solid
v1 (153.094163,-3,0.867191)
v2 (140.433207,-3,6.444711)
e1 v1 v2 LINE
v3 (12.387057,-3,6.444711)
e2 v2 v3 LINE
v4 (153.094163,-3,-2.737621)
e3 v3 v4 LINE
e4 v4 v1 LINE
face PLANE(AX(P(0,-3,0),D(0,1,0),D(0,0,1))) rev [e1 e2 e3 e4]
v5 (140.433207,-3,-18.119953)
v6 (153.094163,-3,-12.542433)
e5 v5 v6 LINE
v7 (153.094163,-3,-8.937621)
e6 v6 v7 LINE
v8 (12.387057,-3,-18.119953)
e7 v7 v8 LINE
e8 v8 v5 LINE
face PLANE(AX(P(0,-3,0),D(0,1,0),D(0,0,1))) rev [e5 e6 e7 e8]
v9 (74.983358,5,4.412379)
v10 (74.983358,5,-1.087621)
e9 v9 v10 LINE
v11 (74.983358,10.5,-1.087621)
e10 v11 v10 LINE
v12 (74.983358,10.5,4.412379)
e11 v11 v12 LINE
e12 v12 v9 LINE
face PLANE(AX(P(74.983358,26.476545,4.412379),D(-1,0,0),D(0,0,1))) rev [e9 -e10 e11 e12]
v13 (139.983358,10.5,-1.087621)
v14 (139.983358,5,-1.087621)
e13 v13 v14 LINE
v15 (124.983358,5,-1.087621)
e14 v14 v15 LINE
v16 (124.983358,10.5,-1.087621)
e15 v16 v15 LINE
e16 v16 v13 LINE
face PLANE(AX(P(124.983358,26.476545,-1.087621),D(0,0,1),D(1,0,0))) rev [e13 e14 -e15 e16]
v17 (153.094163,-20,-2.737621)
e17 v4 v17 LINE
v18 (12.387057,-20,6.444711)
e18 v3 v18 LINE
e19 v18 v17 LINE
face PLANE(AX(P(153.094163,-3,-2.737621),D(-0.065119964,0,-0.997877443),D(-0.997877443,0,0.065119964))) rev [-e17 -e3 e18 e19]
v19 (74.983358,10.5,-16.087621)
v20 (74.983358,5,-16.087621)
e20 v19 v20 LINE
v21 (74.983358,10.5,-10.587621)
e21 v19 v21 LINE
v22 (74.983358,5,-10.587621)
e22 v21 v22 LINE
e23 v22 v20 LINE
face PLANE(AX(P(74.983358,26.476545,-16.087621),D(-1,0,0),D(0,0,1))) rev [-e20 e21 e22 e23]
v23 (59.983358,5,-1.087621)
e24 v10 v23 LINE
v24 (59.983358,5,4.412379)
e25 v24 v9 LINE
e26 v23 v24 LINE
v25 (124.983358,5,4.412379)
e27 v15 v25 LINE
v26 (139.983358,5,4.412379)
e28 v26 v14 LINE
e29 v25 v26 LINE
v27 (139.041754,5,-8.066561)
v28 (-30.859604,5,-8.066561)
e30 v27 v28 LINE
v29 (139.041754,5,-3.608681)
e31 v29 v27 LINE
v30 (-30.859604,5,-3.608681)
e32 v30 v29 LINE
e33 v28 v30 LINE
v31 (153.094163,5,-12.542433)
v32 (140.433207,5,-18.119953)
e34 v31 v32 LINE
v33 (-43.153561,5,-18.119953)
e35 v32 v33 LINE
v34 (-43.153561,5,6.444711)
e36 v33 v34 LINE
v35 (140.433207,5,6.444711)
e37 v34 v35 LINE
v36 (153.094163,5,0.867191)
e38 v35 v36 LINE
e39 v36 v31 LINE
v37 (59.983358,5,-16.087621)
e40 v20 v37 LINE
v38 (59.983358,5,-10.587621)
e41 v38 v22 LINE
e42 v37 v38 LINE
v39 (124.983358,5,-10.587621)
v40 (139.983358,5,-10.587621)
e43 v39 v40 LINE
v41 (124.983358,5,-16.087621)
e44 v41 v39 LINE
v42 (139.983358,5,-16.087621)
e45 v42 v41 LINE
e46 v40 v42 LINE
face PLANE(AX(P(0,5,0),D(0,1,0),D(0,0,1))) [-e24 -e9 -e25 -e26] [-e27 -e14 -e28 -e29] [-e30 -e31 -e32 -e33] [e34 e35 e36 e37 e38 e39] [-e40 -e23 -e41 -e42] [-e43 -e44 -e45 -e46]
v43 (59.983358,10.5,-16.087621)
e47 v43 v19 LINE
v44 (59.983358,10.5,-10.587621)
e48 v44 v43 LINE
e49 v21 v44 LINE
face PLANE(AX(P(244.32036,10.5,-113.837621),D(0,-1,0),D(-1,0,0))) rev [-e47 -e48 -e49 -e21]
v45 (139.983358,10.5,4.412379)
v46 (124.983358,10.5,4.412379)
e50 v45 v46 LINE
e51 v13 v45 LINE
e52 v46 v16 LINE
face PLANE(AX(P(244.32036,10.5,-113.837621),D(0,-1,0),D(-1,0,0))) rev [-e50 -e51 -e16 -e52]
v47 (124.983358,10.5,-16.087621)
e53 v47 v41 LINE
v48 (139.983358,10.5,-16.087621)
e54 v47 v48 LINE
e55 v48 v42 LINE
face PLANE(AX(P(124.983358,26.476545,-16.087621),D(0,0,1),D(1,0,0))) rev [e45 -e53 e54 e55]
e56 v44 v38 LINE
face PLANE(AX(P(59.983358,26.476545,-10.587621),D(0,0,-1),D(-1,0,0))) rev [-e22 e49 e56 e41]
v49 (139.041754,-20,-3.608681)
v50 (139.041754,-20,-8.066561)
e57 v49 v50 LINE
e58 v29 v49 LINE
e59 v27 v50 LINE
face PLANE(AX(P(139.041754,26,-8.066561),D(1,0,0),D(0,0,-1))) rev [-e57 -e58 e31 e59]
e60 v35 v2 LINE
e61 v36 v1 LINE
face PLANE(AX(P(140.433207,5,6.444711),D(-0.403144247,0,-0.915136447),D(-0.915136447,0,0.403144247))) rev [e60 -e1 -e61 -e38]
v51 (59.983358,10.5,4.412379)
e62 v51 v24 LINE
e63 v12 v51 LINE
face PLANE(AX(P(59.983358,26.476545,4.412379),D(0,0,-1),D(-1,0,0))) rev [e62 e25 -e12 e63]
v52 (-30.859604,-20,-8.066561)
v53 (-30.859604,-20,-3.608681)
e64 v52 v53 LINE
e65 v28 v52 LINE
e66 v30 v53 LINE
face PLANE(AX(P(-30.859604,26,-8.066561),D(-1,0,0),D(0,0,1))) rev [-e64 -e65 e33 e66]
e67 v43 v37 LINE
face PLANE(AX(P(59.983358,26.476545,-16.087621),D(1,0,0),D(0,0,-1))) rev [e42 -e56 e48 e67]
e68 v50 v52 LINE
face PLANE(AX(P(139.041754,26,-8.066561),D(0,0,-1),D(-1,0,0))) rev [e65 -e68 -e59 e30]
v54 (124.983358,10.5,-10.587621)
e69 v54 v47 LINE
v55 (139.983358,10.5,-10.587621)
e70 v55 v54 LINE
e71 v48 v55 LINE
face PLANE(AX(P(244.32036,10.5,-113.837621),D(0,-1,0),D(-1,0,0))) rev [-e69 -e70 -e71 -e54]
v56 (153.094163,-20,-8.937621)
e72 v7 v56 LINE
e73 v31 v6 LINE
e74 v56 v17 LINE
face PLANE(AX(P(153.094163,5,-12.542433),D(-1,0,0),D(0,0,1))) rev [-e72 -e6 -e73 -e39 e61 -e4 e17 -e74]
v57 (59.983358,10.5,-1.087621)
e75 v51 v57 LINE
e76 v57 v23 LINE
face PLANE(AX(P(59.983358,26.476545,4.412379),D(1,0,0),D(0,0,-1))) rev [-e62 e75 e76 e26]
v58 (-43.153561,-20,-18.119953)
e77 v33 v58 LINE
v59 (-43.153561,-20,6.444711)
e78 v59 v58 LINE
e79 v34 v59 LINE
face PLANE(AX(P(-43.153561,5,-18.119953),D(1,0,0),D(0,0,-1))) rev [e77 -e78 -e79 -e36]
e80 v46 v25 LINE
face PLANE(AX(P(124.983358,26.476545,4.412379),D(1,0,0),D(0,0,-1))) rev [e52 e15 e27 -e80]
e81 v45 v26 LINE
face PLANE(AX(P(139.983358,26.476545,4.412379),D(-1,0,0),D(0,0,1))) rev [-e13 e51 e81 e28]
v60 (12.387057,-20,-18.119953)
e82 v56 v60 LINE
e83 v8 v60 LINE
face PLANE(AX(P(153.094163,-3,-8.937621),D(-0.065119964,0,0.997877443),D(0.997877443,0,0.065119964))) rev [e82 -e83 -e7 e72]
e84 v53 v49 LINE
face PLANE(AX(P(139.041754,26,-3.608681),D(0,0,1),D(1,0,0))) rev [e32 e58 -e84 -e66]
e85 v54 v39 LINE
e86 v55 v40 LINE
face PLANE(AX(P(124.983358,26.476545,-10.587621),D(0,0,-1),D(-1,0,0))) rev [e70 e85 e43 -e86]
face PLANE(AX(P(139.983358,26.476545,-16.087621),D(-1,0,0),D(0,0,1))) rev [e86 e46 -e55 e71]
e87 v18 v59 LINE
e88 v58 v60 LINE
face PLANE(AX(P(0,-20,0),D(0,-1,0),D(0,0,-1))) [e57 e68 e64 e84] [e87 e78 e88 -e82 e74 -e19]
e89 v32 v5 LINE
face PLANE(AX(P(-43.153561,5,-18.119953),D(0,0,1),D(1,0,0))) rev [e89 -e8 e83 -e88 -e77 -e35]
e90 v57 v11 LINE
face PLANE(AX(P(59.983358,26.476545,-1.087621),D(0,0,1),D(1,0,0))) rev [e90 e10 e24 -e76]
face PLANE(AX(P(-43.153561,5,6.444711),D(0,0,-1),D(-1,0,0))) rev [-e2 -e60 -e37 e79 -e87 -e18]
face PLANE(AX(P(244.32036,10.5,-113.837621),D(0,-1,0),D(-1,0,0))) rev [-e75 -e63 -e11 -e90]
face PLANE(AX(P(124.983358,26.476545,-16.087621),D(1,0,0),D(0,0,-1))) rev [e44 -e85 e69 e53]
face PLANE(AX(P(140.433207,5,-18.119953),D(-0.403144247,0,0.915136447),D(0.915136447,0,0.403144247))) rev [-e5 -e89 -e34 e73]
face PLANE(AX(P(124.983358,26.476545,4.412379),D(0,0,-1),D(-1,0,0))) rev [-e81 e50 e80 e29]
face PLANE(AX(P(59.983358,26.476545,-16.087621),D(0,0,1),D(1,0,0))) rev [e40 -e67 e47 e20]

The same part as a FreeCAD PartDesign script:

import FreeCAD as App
import Part
import Sketcher


def add_polygon(sketch, points):
    """Adds a closed chain of lines whose ends are joined by coincident constraints."""
    first, n = sketch.GeometryCount, len(points)
    for a, b in zip(points, points[1:] + points[:1]):
        sketch.addGeometry(Part.LineSegment(App.Vector(*a, 0), App.Vector(*b, 0)), False)
    for i in range(n):
        sketch.addConstraint(Sketcher.Constraint("Coincident", first + i, 2, first + (i + 1) % n, 1))

doc = App.newDocument("Part")
body = doc.addObject("PartDesign::Body", "Body")

# Sketch on XZ plane
sketch1 = body.newObject("Sketcher::SketchObject", "Sketch")
sketch1.AttachmentSupport = (doc.getObject("XZ_Plane"), [""])
sketch1.MapMode = "FlatFace"
add_polygon(sketch1, [(140, -18), (-43, -18), (-43, 6), (140, 6), (153, 1), (153, -13)])  # lines 0-5
sketch1.addConstraint([
    Sketcher.Constraint("Horizontal", 0),
    Sketcher.Constraint("Vertical", 1),
    Sketcher.Constraint("Horizontal", 2),
    Sketcher.Constraint("Vertical", 4),
    Sketcher.Constraint("Vertical", 2, 2, 5, 2),
    Sketcher.Constraint("Equal", 3, 5),
    Sketcher.Constraint("DistanceX", 0, 2, 0, 1, 183.586768),
    Sketcher.Constraint("DistanceY", 1, 1, 1, 2, 24.564663),
    Sketcher.Constraint("DistanceY", 4, 2, 4, 1, 13.409624),
    Sketcher.Constraint("DistanceX", 0, 2, -1, 1, 43.153561),
    Sketcher.Constraint("DistanceY", -1, 1, 1, 2, 6.444711),
    Sketcher.Constraint("Distance", 3, 13.835047),
])
pad1 = body.newObject("PartDesign::Pad", "Pad")
pad1.Profile = sketch1
pad1.Length = 5
pad1.Reversed = True

# Sketch on XZ plane
sketch2 = body.newObject("Sketcher::SketchObject", "Sketch001")
sketch2.AttachmentSupport = (doc.getObject("XZ_Plane"), [""])
sketch2.MapMode = "FlatFace"
add_polygon(sketch2, [(-30.9, -3.6), (-30.9, -8.1), (139, -8.1), (139, -3.6)])  # lines 0-3
sketch2.addConstraint([
    Sketcher.Constraint("Vertical", 0),
    Sketcher.Constraint("Horizontal", 1),
    Sketcher.Constraint("Vertical", 2),
    Sketcher.Constraint("Horizontal", 3),
    Sketcher.Constraint("DistanceX", 1, 1, 1, 2, 169.901358),
    Sketcher.Constraint("DistanceY", 0, 2, 0, 1, 4.457881),
    Sketcher.Constraint("DistanceY", 0, 2, -1, 1, 8.066561),
    Sketcher.Constraint("DistanceX", 0, 2, -1, 1, 30.859604),
])
pocket1 = body.newObject("PartDesign::Pocket", "Pocket")
pocket1.Profile = sketch2
pocket1.Length = 26

# Sketch on XZ plane
sketch3 = body.newObject("Sketcher::SketchObject", "Sketch002")
sketch3.AttachmentSupport = (doc.getObject("XZ_Plane"), [""])
sketch3.MapMode = "FlatFace"
sketch3.AttachmentOffset = App.Placement(App.Vector(0, 0, -5), App.Rotation())
add_polygon(sketch3, [(125, -16), (125, -11), (140, -11), (140, -16)])  # lines 0-3
add_polygon(sketch3, [(125, -1), (125, 4), (140, 4), (140, -1)])  # lines 4-7
add_polygon(sketch3, [(60, -1), (60, 4), (75, 4), (75, -1)])  # lines 8-11
add_polygon(sketch3, [(60, -16), (60, -11), (75, -11), (75, -16)])  # lines 12-15
sketch3.addConstraint([
    Sketcher.Constraint("Vertical", 0),
    Sketcher.Constraint("Horizontal", 1),
    Sketcher.Constraint("Vertical", 2),
    Sketcher.Constraint("Horizontal", 3),
    Sketcher.Constraint("Vertical", 4),
    Sketcher.Constraint("Horizontal", 5),
    Sketcher.Constraint("Vertical", 6),
    Sketcher.Constraint("Horizontal", 7),
    Sketcher.Constraint("Vertical", 8),
    Sketcher.Constraint("Horizontal", 9),
    Sketcher.Constraint("Vertical", 10),
    Sketcher.Constraint("Horizontal", 11),
    Sketcher.Constraint("Vertical", 12),
    Sketcher.Constraint("Horizontal", 13),
    Sketcher.Constraint("Vertical", 14),
    Sketcher.Constraint("Horizontal", 15),
    Sketcher.Constraint("Horizontal", 5, 2, 8, 2),
    Sketcher.Constraint("Horizontal", 7, 2, 10, 2),
    Sketcher.Constraint("Horizontal", 1, 2, 12, 2),
    Sketcher.Constraint("Horizontal", 3, 2, 14, 2),
    Sketcher.Constraint("Vertical", 3, 2, 4, 2),
    Sketcher.Constraint("Vertical", 2, 2, 5, 2),
    Sketcher.Constraint("Vertical", 11, 2, 12, 2),
    Sketcher.Constraint("Vertical", 10, 2, 13, 2),
    Sketcher.Constraint("Equal", 7, 9),
    Sketcher.Constraint("Equal", 2, 4),
    Sketcher.Constraint("DistanceX", 1, 1, 1, 2, 15.0),
    Sketcher.Constraint("DistanceY", 0, 1, 0, 2, 5.5),
    Sketcher.Constraint("DistanceY", 0, 2, 4, 2, 15.0),
    Sketcher.Constraint("DistanceX", 8, 2, 4, 2, 65.0),
    Sketcher.Constraint("DistanceX", -1, 1, 0, 2, 124.983358),
    Sketcher.Constraint("DistanceY", 0, 2, -1, 1, 10.587621),
])
pad2 = body.newObject("PartDesign::Pad", "Pad001")
pad2.Profile = sketch3
pad2.Length = 5.5
pad2.Reversed = True

# Sketch on XZ plane
sketch4 = body.newObject("Sketcher::SketchObject", "Sketch003")
sketch4.AttachmentSupport = (doc.getObject("XZ_Plane"), [""])
sketch4.MapMode = "FlatFace"
add_polygon(sketch4, [(-43.2, 6.4), (-43.2, -18.1), (140.4, -18.1), (153.1, -12.5), (153.1, 0.9), (140.4, 6.4)])  # lines 0-5
add_polygon(sketch4, [(139, -8.1), (-30.9, -8.1), (-30.9, -3.6), (139, -3.6)])  # lines 6-9
sketch4.addConstraint([
    Sketcher.Constraint("Vertical", 0),
    Sketcher.Constraint("Horizontal", 1),
    Sketcher.Constraint("Vertical", 3),
    Sketcher.Constraint("Horizontal", 5),
    Sketcher.Constraint("Horizontal", 6),
    Sketcher.Constraint("Vertical", 7),
    Sketcher.Constraint("Horizontal", 8),
    Sketcher.Constraint("Vertical", 9),
    Sketcher.Constraint("Vertical", 1, 2, 4, 2),
    Sketcher.Constraint("Equal", 2, 4),
    Sketcher.Constraint("DistanceX", 6, 2, 6, 1, 169.901358),
    Sketcher.Constraint("DistanceY", 7, 1, 7, 2, 4.457881),
    Sketcher.Constraint("DistanceX", 1, 1, 1, 2, 183.586768),
    Sketcher.Constraint("DistanceY", 0, 2, 0, 1, 24.564663),
    Sketcher.Constraint("DistanceY", 3, 1, 3, 2, 13.409624),
    Sketcher.Constraint("DistanceX", 0, 2, -1, 1, 43.153561),
    Sketcher.Constraint("DistanceY", -1, 1, 3, 2, 0.867191),
    Sketcher.Constraint("DistanceY", 6, 2, -1, 1, 8.066561),
    Sketcher.Constraint("DistanceX", 6, 2, 1, 2, 171.292811),
    Sketcher.Constraint("DistanceX", 8, 2, 3, 2, 14.052409),
])
pad3 = body.newObject("PartDesign::Pad", "Pad002")
pad3.Profile = sketch4
pad3.Length = 20

# Sketch on XZ plane
sketch5 = body.newObject("Sketcher::SketchObject", "Sketch004")
sketch5.AttachmentSupport = (doc.getObject("XZ_Plane"), [""])
sketch5.MapMode = "FlatFace"
sketch5.AttachmentOffset = App.Placement(App.Vector(0, 0, 20), App.Rotation())
add_polygon(sketch5, [(12.4, -18.1), (140.4, -18.1), (153.1, -12.5), (153.1, -8.9)])  # lines 0-3
add_polygon(sketch5, [(153.1, -2.7), (153.1, 0.9), (140.4, 6.4), (12.4, 6.4)])  # lines 4-7
sketch5.addConstraint([
    Sketcher.Constraint("Horizontal", 0),
    Sketcher.Constraint("Vertical", 2),
    Sketcher.Constraint("Vertical", 4),
    Sketcher.Constraint("Horizontal", 6),
    Sketcher.Constraint("Vertical", 2, 2, 4, 2),
    Sketcher.Constraint("Vertical", 0, 2, 5, 2),
    Sketcher.Constraint("Vertical", 3, 2, 6, 2),
    Sketcher.Constraint("Equal", 2, 4),
    Sketcher.Constraint("Equal", 1, 5),
    Sketcher.Constraint("DistanceY", 2, 2, 7, 2, 6.2),
    Sketcher.Constraint("Distance", 3, 141.0064),
    Sketcher.Constraint("DistanceX", 0, 1, 0, 2, 128.04615),
    Sketcher.Constraint("DistanceY", 2, 1, 2, 2, 3.604812),
    Sketcher.Constraint("DistanceY", 2, 2, -1, 1, 8.937621),
    Sketcher.Constraint("DistanceY", -1, 1, 5, 2, 6.444711),
    Sketcher.Constraint("DistanceX", -1, 1, 0, 2, 140.433207),
])
pocket2 = body.newObject("PartDesign::Pocket", "Pocket001")
pocket2.Profile = sketch5
pocket2.Length = 17

doc.recompute()
